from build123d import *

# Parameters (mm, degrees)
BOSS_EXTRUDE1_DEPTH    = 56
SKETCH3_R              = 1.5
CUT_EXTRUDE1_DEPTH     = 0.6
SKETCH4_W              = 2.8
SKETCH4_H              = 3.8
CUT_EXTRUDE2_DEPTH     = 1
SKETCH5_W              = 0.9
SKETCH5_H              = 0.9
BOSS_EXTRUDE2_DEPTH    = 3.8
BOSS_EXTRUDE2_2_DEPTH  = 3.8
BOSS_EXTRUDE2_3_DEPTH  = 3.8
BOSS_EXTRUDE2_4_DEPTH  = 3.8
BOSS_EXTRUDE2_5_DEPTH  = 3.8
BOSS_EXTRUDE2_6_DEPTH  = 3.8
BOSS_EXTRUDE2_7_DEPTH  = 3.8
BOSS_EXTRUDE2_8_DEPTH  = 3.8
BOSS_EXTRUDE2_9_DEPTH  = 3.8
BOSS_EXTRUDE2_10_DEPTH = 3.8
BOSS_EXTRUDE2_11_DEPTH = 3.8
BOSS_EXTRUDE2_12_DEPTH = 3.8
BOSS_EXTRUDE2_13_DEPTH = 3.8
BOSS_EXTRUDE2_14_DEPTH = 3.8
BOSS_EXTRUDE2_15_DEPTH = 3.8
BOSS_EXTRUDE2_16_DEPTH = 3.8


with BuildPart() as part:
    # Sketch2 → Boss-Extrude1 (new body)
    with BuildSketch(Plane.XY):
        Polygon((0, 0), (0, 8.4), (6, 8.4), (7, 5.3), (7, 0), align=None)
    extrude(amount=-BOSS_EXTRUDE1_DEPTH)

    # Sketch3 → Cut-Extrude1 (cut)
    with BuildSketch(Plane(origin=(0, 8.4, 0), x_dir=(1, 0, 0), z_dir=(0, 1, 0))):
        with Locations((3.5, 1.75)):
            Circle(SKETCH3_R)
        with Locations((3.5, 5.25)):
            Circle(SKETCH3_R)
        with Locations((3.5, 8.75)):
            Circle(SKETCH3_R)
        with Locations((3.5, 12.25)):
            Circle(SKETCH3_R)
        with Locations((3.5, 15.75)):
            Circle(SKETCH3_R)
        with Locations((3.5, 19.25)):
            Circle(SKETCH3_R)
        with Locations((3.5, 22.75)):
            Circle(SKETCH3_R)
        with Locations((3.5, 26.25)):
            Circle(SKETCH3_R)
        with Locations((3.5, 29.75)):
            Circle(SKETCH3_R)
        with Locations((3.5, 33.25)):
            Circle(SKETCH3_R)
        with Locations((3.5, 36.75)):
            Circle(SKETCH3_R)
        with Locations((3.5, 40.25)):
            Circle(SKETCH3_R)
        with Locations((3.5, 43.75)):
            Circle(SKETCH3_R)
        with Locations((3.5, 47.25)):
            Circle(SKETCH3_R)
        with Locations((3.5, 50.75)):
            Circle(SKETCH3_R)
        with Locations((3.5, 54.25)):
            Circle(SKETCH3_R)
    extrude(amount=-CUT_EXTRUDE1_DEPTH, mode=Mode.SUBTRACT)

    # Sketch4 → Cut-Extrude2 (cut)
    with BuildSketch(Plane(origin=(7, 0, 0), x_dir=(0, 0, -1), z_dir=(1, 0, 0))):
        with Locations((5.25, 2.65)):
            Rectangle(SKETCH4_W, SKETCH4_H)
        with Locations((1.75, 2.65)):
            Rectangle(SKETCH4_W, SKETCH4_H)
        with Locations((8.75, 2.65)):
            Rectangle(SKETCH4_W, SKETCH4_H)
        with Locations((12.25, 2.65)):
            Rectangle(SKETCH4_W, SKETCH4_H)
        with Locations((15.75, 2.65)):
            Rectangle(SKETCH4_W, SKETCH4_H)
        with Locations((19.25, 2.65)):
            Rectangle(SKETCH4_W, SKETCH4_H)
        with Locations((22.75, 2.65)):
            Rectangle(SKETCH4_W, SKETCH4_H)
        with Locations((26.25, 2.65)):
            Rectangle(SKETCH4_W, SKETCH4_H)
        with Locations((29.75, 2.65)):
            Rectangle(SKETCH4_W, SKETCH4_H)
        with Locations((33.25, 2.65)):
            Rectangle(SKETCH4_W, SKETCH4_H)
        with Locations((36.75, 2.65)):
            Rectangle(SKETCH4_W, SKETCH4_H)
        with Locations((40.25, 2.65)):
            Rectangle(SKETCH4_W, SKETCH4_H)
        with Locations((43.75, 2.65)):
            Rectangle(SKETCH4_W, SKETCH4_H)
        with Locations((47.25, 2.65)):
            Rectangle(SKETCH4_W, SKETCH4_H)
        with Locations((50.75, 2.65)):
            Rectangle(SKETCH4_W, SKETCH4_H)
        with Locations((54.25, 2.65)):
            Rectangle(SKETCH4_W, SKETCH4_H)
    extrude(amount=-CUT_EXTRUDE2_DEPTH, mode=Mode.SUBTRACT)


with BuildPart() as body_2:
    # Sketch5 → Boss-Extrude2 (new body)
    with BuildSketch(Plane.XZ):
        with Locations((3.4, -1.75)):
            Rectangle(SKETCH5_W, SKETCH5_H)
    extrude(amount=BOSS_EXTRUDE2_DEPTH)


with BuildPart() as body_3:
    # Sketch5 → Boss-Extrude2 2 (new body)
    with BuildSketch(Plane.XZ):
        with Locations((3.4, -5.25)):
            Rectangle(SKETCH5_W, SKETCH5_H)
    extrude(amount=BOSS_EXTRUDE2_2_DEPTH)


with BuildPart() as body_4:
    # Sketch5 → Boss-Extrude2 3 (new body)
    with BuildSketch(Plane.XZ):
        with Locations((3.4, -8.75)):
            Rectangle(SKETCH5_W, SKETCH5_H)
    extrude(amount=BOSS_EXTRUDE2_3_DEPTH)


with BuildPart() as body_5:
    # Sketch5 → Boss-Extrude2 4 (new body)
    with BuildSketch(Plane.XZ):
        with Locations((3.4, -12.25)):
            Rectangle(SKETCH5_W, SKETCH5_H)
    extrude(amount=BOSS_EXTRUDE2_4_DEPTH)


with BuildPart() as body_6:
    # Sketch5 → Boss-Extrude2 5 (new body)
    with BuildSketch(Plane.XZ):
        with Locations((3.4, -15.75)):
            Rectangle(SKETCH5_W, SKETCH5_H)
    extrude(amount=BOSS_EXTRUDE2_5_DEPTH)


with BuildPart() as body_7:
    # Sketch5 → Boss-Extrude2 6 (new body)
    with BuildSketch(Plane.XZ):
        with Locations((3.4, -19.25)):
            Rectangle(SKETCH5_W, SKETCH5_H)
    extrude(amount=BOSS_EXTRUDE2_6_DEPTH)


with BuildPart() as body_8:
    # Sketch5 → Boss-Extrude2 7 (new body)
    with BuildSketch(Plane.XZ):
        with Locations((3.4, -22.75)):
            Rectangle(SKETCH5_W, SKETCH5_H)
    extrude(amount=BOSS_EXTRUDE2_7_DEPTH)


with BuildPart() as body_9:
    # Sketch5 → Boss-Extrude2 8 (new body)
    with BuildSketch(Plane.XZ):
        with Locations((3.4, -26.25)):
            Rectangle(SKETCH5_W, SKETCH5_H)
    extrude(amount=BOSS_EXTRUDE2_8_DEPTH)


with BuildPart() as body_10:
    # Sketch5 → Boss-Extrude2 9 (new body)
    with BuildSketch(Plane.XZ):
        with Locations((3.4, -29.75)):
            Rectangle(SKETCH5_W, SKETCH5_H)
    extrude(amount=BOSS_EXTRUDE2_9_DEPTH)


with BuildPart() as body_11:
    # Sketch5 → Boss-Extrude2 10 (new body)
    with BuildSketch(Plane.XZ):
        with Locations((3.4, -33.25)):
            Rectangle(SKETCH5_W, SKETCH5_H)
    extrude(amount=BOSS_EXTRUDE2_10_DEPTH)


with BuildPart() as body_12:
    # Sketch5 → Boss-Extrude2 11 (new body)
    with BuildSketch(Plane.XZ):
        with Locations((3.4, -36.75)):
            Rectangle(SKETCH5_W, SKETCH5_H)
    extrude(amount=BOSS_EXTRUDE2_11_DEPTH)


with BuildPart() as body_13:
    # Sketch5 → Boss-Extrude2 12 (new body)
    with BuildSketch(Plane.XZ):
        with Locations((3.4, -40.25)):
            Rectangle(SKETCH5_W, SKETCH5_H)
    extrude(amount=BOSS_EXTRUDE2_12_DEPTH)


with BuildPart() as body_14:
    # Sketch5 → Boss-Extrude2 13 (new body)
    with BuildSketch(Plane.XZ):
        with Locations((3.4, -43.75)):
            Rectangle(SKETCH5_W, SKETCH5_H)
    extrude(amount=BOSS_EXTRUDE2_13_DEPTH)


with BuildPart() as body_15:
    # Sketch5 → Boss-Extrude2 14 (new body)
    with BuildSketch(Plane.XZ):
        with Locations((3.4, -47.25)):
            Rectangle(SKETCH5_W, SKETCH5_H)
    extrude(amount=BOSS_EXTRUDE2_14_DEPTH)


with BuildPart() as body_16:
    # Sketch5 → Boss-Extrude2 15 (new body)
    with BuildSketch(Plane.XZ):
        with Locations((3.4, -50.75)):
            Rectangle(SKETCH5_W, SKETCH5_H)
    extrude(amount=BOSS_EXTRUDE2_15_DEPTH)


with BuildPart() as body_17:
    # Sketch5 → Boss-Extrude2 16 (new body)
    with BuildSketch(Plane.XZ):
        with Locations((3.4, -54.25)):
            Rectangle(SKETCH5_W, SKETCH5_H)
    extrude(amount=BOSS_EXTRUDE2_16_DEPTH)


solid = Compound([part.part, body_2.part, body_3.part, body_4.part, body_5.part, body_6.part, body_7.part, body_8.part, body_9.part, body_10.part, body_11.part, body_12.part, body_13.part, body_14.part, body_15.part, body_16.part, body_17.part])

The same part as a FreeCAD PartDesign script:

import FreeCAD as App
import Part
import Sketcher
from FreeCAD import Vector
Q = App.Units.Quantity


def add_polygon(sketch, points):
    """Adds a closed chain of lines whose ends are joined by coincident constraints."""
    first, n = sketch.GeometryCount, len(points)
    for a, b in zip(points, points[1:] + points[:1]):
        sketch.addGeometry(Part.LineSegment(App.Vector(*a, 0), App.Vector(*b, 0)), False)
    for i in range(n):
        sketch.addConstraint(Sketcher.Constraint("Coincident", first + i, 2, first + (i + 1) % n, 1))

doc = App.newDocument("Part")
body = doc.addObject("PartDesign::Body", "Body")

# Sketch on XY plane
sketch1 = body.newObject("Sketcher::SketchObject", "Sketch")
sketch1.AttachmentSupport = (doc.getObject("XY_Plane"), [""])
sketch1.MapMode = "FlatFace"
add_polygon(sketch1, [(0, 8.4), (0, 0), (7, 0), (7, 5.3), (6, 8.4)])  # lines 0-4
sketch1.addConstraint(Sketcher.Constraint("Vertical", 0))
sketch1.addConstraint(Sketcher.Constraint("Horizontal", 1))
sketch1.addConstraint(Sketcher.Constraint("Vertical", 2))
sketch1.addConstraint(Sketcher.Constraint("Horizontal", 4))
sketch1.addConstraint(Sketcher.Constraint("Coincident", 0, 2, -1, 1))
sketch1.addConstraint(Sketcher.Constraint("DistanceX", 1, 1, 1, 2, Q("7 mm")))
sketch1.addConstraint(Sketcher.Constraint("DistanceX", 4, 2, 4, 1, Q("6 mm")))
sketch1.addConstraint(Sketcher.Constraint("DistanceY", 0, 2, 0, 1, Q("8.4 mm")))
sketch1.addConstraint(Sketcher.Constraint("DistanceY", 2, 1, 2, 2, Q("5.3 mm")))
pad1 = body.newObject("PartDesign::Pad", "Pad")
pad1.Profile = sketch1
pad1.Length = 56
pad1.Reversed = True

# Sketch on XZ plane
sketch2 = body.newObject("Sketcher::SketchObject", "Sketch001")
sketch2.AttachmentSupport = (doc.getObject("XZ_Plane"), [""])
sketch2.MapMode = "FlatFace"
sketch2.AttachmentOffset = App.Placement(Vector(0, 0, -8.4), App.Rotation())
sketch2.addGeometry(Part.Circle(Vector(3.5, -1.75, 0), Vector(0, 0, 1), 1.5), False)
sketch2.addGeometry(Part.Circle(Vector(3.5, -5.25, 0), Vector(0, 0, 1), 1.5), False)
sketch2.addGeometry(Part.Circle(Vector(3.5, -8.75, 0), Vector(0, 0, 1), 1.5), False)
sketch2.addGeometry(Part.Circle(Vector(3.5, -12.25, 0), Vector(0, 0, 1), 1.5), False)
sketch2.addGeometry(Part.Circle(Vector(3.5, -15.75, 0), Vector(0, 0, 1), 1.5), False)
sketch2.addGeometry(Part.Circle(Vector(3.5, -19.25, 0), Vector(0, 0, 1), 1.5), False)
sketch2.addGeometry(Part.Circle(Vector(3.5, -22.75, 0), Vector(0, 0, 1), 1.5), False)
sketch2.addGeometry(Part.Circle(Vector(3.5, -26.25, 0), Vector(0, 0, 1), 1.5), False)
sketch2.addGeometry(Part.Circle(Vector(3.5, -29.75, 0), Vector(0, 0, 1), 1.5), False)
sketch2.addGeometry(Part.Circle(Vector(3.5, -33.25, 0), Vector(0, 0, 1), 1.5), False)
sketch2.addGeometry(Part.Circle(Vector(3.5, -36.75, 0), Vector(0, 0, 1), 1.5), False)
sketch2.addGeometry(Part.Circle(Vector(3.5, -40.25, 0), Vector(0, 0, 1), 1.5), False)
sketch2.addGeometry(Part.Circle(Vector(3.5, -43.75, 0), Vector(0, 0, 1), 1.5), False)
sketch2.addGeometry(Part.Circle(Vector(3.5, -47.25, 0), Vector(0, 0, 1), 1.5), False)
sketch2.addGeometry(Part.Circle(Vector(3.5, -50.75, 0), Vector(0, 0, 1), 1.5), False)
sketch2.addGeometry(Part.Circle(Vector(3.5, -54.25, 0), Vector(0, 0, 1), 1.5), False)
sketch2.addConstraint(Sketcher.Constraint("Equal", 0, 1))
sketch2.addConstraint(Sketcher.Constraint("Equal", 1, 2))
sketch2.addConstraint(Sketcher.Constraint("Equal", 2, 3))
sketch2.addConstraint(Sketcher.Constraint("Equal", 3, 4))
sketch2.addConstraint(Sketcher.Constraint("Equal", 4, 5))
sketch2.addConstraint(Sketcher.Constraint("Equal", 5, 6))
sketch2.addConstraint(Sketcher.Constraint("Equal", 6, 7))
sketch2.addConstraint(Sketcher.Constraint("Equal", 7, 8))
sketch2.addConstraint(Sketcher.Constraint("Equal", 8, 9))
sketch2.addConstraint(Sketcher.Constraint("Equal", 9, 10))
sketch2.addConstraint(Sketcher.Constraint("Equal", 10, 11))
sketch2.addConstraint(Sketcher.Constraint("Equal", 11, 12))
sketch2.addConstraint(Sketcher.Constraint("Equal", 12, 13))
sketch2.addConstraint(Sketcher.Constraint("Equal", 13, 14))
sketch2.addConstraint(Sketcher.Constraint("Equal", 14, 15))
sketch2.addConstraint(Sketcher.Constraint("Vertical", 0, 3, 1, 3))
sketch2.addConstraint(Sketcher.Constraint("Vertical", 1, 3, 2, 3))
sketch2.addConstraint(Sketcher.Constraint("Vertical", 2, 3, 3, 3))
sketch2.addConstraint(Sketcher.Constraint("Vertical", 3, 3, 4, 3))
sketch2.addConstraint(Sketcher.Constraint("Vertical", 4, 3, 5, 3))
sketch2.addConstraint(Sketcher.Constraint("Vertical", 5, 3, 6, 3))
sketch2.addConstraint(Sketcher.Constraint("Vertical", 6, 3, 7, 3))
sketch2.addConstraint(Sketcher.Constraint("Vertical", 7, 3, 8, 3))
sketch2.addConstraint(Sketcher.Constraint("Vertical", 8, 3, 9, 3))
sketch2.addConstraint(Sketcher.Constraint("Vertical", 9, 3, 10, 3))
sketch2.addConstraint(Sketcher.Constraint("Vertical", 10, 3, 11, 3))
sketch2.addConstraint(Sketcher.Constraint("Vertical", 11, 3, 12, 3))
sketch2.addConstraint(Sketcher.Constraint("Vertical", 12, 3, 13, 3))
sketch2.addConstraint(Sketcher.Constraint("Vertical", 13, 3, 14, 3))
sketch2.addConstraint(Sketcher.Constraint("Vertical", 14, 3, 15, 3))
sketch2.addConstraint(Sketcher.Constraint("Diameter", 0, Q("3 mm")))
sketch2.addConstraint(Sketcher.Constraint("DistanceY", 2, 3, 0, 3, Q("7 mm")))
sketch2.addConstraint(Sketcher.Constraint("DistanceY", 3, 3, 1, 3, Q("7 mm")))
sketch2.addConstraint(Sketcher.Constraint("DistanceY", 4, 3, 2, 3, Q("7 mm")))
sketch2.addConstraint(Sketcher.Constraint("DistanceY", 5, 3, 3, 3, Q("7 mm")))
sketch2.addConstraint(Sketcher.Constraint("DistanceY", 6, 3, 4, 3, Q("7 mm")))
sketch2.addConstraint(Sketcher.Constraint("DistanceY", 7, 3, 5, 3, Q("7 mm")))
sketch2.addConstraint(Sketcher.Constraint("DistanceY", 8, 3, 6, 3, Q("7 mm")))
sketch2.addConstraint(Sketcher.Constraint("DistanceY", 9, 3, 7, 3, Q("7 mm")))
sketch2.addConstraint(Sketcher.Constraint("DistanceY", 10, 3, 8, 3, Q("7 mm")))
sketch2.addConstraint(Sketcher.Constraint("DistanceY", 11, 3, 9, 3, Q("7 mm")))
sketch2.addConstraint(Sketcher.Constraint("DistanceY", 12, 3, 10, 3, Q("7 mm")))
sketch2.addConstraint(Sketcher.Constraint("DistanceY", 13, 3, 11, 3, Q("7 mm")))
sketch2.addConstraint(Sketcher.Constraint("DistanceY", 14, 3, 12, 3, Q("7 mm")))
sketch2.addConstraint(Sketcher.Constraint("DistanceY", 15, 3, 13, 3, Q("7 mm")))
sketch2.addConstraint(Sketcher.Constraint("DistanceX", -1, 1, 0, 3, Q("3.5 mm")))
sketch2.addConstraint(Sketcher.Constraint("DistanceY", 1, 3, 0, 3, Q("3.5 mm")))
sketch2.addConstraint(Sketcher.Constraint("DistanceY", 0, 3, -1, 1, Q("1.75 mm")))
pocket1 = body.newObject("PartDesign::Pocket", "Pocket")
pocket1.Profile = sketch2
pocket1.Length = 0.6
pocket1.Reversed = True

# Sketch on YZ plane
sketch3 = body.newObject("Sketcher::SketchObject", "Sketch002")
sketch3.AttachmentSupport = (doc.getObject("YZ_Plane"), [""])
sketch3.MapMode = "FlatFace"
sketch3.AttachmentOffset = App.Placement(Vector(0, 0, 7), App.Rotation())
add_polygon(sketch3, [(4.55, -3.85), (0.75, -3.85), (0.75, -6.65), (4.55, -6.65)])  # lines 0-3
add_polygon(sketch3, [(4.55, -0.35), (0.75, -0.35), (0.75, -3.15), (4.55, -3.15)])  # lines 4-7
add_polygon(sketch3, [(4.55, -7.35), (0.75, -7.35), (0.75, -10.15), (4.55, -10.15)])  # lines 8-11
add_polygon(sketch3, [(4.55, -10.85), (0.75, -10.85), (0.75, -13.65), (4.55, -13.65)])  # lines 12-15
add_polygon(sketch3, [(4.55, -14.35), (0.75, -14.35), (0.75, -17.15), (4.55, -17.15)])  # lines 16-19
add_polygon(sketch3, [(4.55, -17.85), (0.75, -17.85), (0.75, -20.65), (4.55, -20.65)])  # lines 20-23
add_polygon(sketch3, [(4.55, -21.35), (0.75, -21.35), (0.75, -24.15), (4.55, -24.15)])  # lines 24-27
add_polygon(sketch3, [(4.55, -24.85), (0.75, -24.85), (0.75, -27.65), (4.55, -27.65)])  # lines 28-31
add_polygon(sketch3, [(4.55, -28.35), (0.75, -28.35), (0.75, -31.15), (4.55, -31.15)])  # lines 32-35
add_polygon(sketch3, [(4.55, -31.85), (0.75, -31.85), (0.75, -34.65), (4.55, -34.65)])  # lines 36-39
add_polygon(sketch3, [(4.55, -35.35), (0.75, -35.35), (0.75, -38.15), (4.55, -38.15)])  # lines 40-43
add_polygon(sketch3, [(4.55, -38.85), (0.75, -38.85), (0.75, -41.65), (4.55, -41.65)])  # lines 44-47
add_polygon(sketch3, [(4.55, -42.35), (0.75, -42.35), (0.75, -45.15), (4.55, -45.15)])  # lines 48-51
add_polygon(sketch3, [(4.55, -45.85), (0.75, -45.85), (0.75, -48.65), (4.55, -48.65)])  # lines 52-55
add_polygon(sketch3, [(4.55, -49.35), (0.75, -49.35), (0.75, -52.15), (4.55, -52.15)])  # lines 56-59
add_polygon(sketch3, [(4.55, -52.85), (0.75, -52.85), (0.75, -55.65), (4.55, -55.65)])  # lines 60-63
sketch3.addConstraint(Sketcher.Constraint("Horizontal", 0))
sketch3.addConstraint(Sketcher.Constraint("Vertical", 1))
sketch3.addConstraint(Sketcher.Constraint("Horizontal", 2))
sketch3.addConstraint(Sketcher.Constraint("Vertical", 3))
sketch3.addConstraint(Sketcher.Constraint("Horizontal", 4))
sketch3.addConstraint(Sketcher.Constraint("Vertical", 5))
sketch3.addConstraint(Sketcher.Constraint("Horizontal", 6))
sketch3.addConstraint(Sketcher.Constraint("Vertical", 7))
sketch3.addConstraint(Sketcher.Constraint("Horizontal", 8))
sketch3.addConstraint(Sketcher.Constraint("Vertical", 9))
sketch3.addConstraint(Sketcher.Constraint("Horizontal", 10))
sketch3.addConstraint(Sketcher.Constraint("Vertical", 11))
sketch3.addConstraint(Sketcher.Constraint("Horizontal", 12))
sketch3.addConstraint(Sketcher.Constraint("Vertical", 13))
sketch3.addConstraint(Sketcher.Constraint("Horizontal", 14))
sketch3.addConstraint(Sketcher.Constraint("Vertical", 15))
sketch3.addConstraint(Sketcher.Constraint("Horizontal", 16))
sketch3.addConstraint(Sketcher.Constraint("Vertical", 17))
sketch3.addConstraint(Sketcher.Constraint("Horizontal", 18))
sketch3.addConstraint(Sketcher.Constraint("Vertical", 19))
sketch3.addConstraint(Sketcher.Constraint("Horizontal", 20))
sketch3.addConstraint(Sketcher.Constraint("Vertical", 21))
sketch3.addConstraint(Sketcher.Constraint("Horizontal", 22))
sketch3.addConstraint(Sketcher.Constraint("Vertical", 23))
sketch3.addConstraint(Sketcher.Constraint("Horizontal", 24))
sketch3.addConstraint(Sketcher.Constraint("Vertical", 25))
sketch3.addConstraint(Sketcher.Constraint("Horizontal", 26))
sketch3.addConstraint(Sketcher.Constraint("Vertical", 27))
sketch3.addConstraint(Sketcher.Constraint("Horizontal", 28))
sketch3.addConstraint(Sketcher.Constraint("Vertical", 29))
sketch3.addConstraint(Sketcher.Constraint("Horizontal", 30))
sketch3.addConstraint(Sketcher.Constraint("Vertical", 31))
sketch3.addConstraint(Sketcher.Constraint("Horizontal", 32))
sketch3.addConstraint(Sketcher.Constraint("Vertical", 33))
sketch3.addConstraint(Sketcher.Constraint("Horizontal", 34))
sketch3.addConstraint(Sketcher.Constraint("Vertical", 35))
sketch3.addConstraint(Sketcher.Constraint("Horizontal", 36))
sketch3.addConstraint(Sketcher.Constraint("Vertical", 37))
sketch3.addConstraint(Sketcher.Constraint("Horizontal", 38))
sketch3.addConstraint(Sketcher.Constraint("Vertical", 39))
sketch3.addConstraint(Sketcher.Constraint("Horizontal", 40))
sketch3.addConstraint(Sketcher.Constraint("Vertical", 41))
sketch3.addConstraint(Sketcher.Constraint("Horizontal", 42))
sketch3.addConstraint(Sketcher.Constraint("Vertical", 43))
sketch3.addConstraint(Sketcher.Constraint("Horizontal", 44))
sketch3.addConstraint(Sketcher.Constraint("Vertical", 45))
sketch3.addConstraint(Sketcher.Constraint("Horizontal", 46))
sketch3.addConstraint(Sketcher.Constraint("Vertical", 47))
sketch3.addConstraint(Sketcher.Constraint("Horizontal", 48))
sketch3.addConstraint(Sketcher.Constraint("Vertical", 49))
sketch3.addConstraint(Sketcher.Constraint("Horizontal", 50))
sketch3.addConstraint(Sketcher.Constraint("Vertical", 51))
sketch3.addConstraint(Sketcher.Constraint("Horizontal", 52))
sketch3.addConstraint(Sketcher.Constraint("Vertical", 53))
sketch3.addConstraint(Sketcher.Constraint("Horizontal", 54))
sketch3.addConstraint(Sketcher.Constraint("Vertical", 55))
sketch3.addConstraint(Sketcher.Constraint("Horizontal", 56))
sketch3.addConstraint(Sketcher.Constraint("Vertical", 57))
sketch3.addConstraint(Sketcher.Constraint("Horizontal", 58))
sketch3.addConstraint(Sketcher.Constraint("Vertical", 59))
sketch3.addConstraint(Sketcher.Constraint("Horizontal", 60))
sketch3.addConstraint(Sketcher.Constraint("Vertical", 61))
sketch3.addConstraint(Sketcher.Constraint("Horizontal", 62))
sketch3.addConstraint(Sketcher.Constraint("Vertical", 63))
sketch3.addConstraint(Sketcher.Constraint("Vertical", 1, 2, 4, 2))
sketch3.addConstraint(Sketcher.Constraint("Vertical", 3, 2, 6, 2))
sketch3.addConstraint(Sketcher.Constraint("Vertical", 5, 2, 8, 2))
sketch3.addConstraint(Sketcher.Constraint("Vertical", 7, 2, 10, 2))
sketch3.addConstraint(Sketcher.Constraint("Vertical", 9, 2, 12, 2))
sketch3.addConstraint(Sketcher.Constraint("Vertical", 11, 2, 14, 2))
sketch3.addConstraint(Sketcher.Constraint("Vertical", 13, 2, 16, 2))
sketch3.addConstraint(Sketcher.Constraint("Vertical", 15, 2, 18, 2))
sketch3.addConstraint(Sketcher.Constraint("Vertical", 17, 2, 20, 2))
sketch3.addConstraint(Sketcher.Constraint("Vertical", 19, 2, 22, 2))
sketch3.addConstraint(Sketcher.Constraint("Vertical", 21, 2, 24, 2))
sketch3.addConstraint(Sketcher.Constraint("Vertical", 23, 2, 26, 2))
sketch3.addConstraint(Sketcher.Constraint("Vertical", 25, 2, 28, 2))
sketch3.addConstraint(Sketcher.Constraint("Vertical", 27, 2, 30, 2))
sketch3.addConstraint(Sketcher.Constraint("Vertical", 29, 2, 32, 2))
sketch3.addConstraint(Sketcher.Constraint("Vertical", 31, 2, 34, 2))
sketch3.addConstraint(Sketcher.Constraint("Vertical", 33, 2, 36, 2))
sketch3.addConstraint(Sketcher.Constraint("Vertical", 35, 2, 38, 2))
sketch3.addConstraint(Sketcher.Constraint("Vertical", 37, 2, 40, 2))
sketch3.addConstraint(Sketcher.Constraint("Vertical", 39, 2, 42, 2))
sketch3.addConstraint(Sketcher.Constraint("Vertical", 41, 2, 44, 2))
sketch3.addConstraint(Sketcher.Constraint("Vertical", 43, 2, 46, 2))
sketch3.addConstraint(Sketcher.Constraint("Vertical", 45, 2, 48, 2))
sketch3.addConstraint(Sketcher.Constraint("Vertical", 47, 2, 50, 2))
sketch3.addConstraint(Sketcher.Constraint("Vertical", 49, 2, 52, 2))
sketch3.addConstraint(Sketcher.Constraint("Vertical", 51, 2, 54, 2))
sketch3.addConstraint(Sketcher.Constraint("Vertical", 53, 2, 56, 2))
sketch3.addConstraint(Sketcher.Constraint("Vertical", 55, 2, 58, 2))
sketch3.addConstraint(Sketcher.Constraint("Vertical", 57, 2, 60, 2))
sketch3.addConstraint(Sketcher.Constraint("Vertical", 59, 2, 62, 2))
sketch3.addConstraint(Sketcher.Constraint("Equal", 3, 5))
sketch3.addConstraint(Sketcher.Constraint("Equal", 7, 9))
sketch3.addConstraint(Sketcher.Constraint("Equal", 11, 13))
sketch3.addConstraint(Sketcher.Constraint("Equal", 15, 17))
sketch3.addConstraint(Sketcher.Constraint("Equal", 19, 21))
sketch3.addConstraint(Sketcher.Constraint("Equal", 23, 25))
sketch3.addConstraint(Sketcher.Constraint("Equal", 27, 29))
sketch3.addConstraint(Sketcher.Constraint("Equal", 31, 33))
sketch3.addConstraint(Sketcher.Constraint("Equal", 35, 37))
sketch3.addConstraint(Sketcher.Constraint("Equal", 39, 41))
sketch3.addConstraint(Sketcher.Constraint("Equal", 43, 45))
sketch3.addConstraint(Sketcher.Constraint("Equal", 47, 49))
sketch3.addConstraint(Sketcher.Constraint("Equal", 51, 53))
sketch3.addConstraint(Sketcher.Constraint("Equal", 55, 57))
sketch3.addConstraint(Sketcher.Constraint("Equal", 59, 61))
sketch3.addConstraint(Sketcher.Constraint("DistanceX", 0, 2, 0, 1, Q("3.8 mm")))
sketch3.addConstraint(Sketcher.Constraint("DistanceY", 1, 2, 1, 1, Q("2.8 mm")))
sketch3.addConstraint(Sketcher.Constraint("DistanceX", -1, 1, 0, 2, Q("0.75 mm")))
sketch3.addConstraint(Sketcher.Constraint("DistanceY", 0, 2, -1, 1, Q("3.85 mm")))
sketch3.addConstraint(Sketcher.Constraint("DistanceY", 4, 2, -1, 1, Q("0.35 mm")))
sketch3.addConstraint(Sketcher.Constraint("DistanceY", 8, 2, -1, 1, Q("7.35 mm")))
sketch3.addConstraint(Sketcher.Constraint("DistanceY", 12, 2, -1, 1, Q("10.85 mm")))
sketch3.addConstraint(Sketcher.Constraint("DistanceY", 16, 2, -1, 1, Q("14.35 mm")))
sketch3.addConstraint(Sketcher.Constraint("DistanceY", 20, 2, -1, 1, Q("17.85 mm")))
sketch3.addConstraint(Sketcher.Constraint("DistanceY", 24, 2, -1, 1, Q("21.35 mm")))
sketch3.addConstraint(Sketcher.Constraint("DistanceY", 28, 2, -1, 1, Q("24.85 mm")))
sketch3.addConstraint(Sketcher.Constraint("DistanceY", 32, 2, -1, 1, Q("28.35 mm")))
sketch3.addConstraint(Sketcher.Constraint("DistanceY", 36, 2, -1, 1, Q("31.85 mm")))
sketch3.addConstraint(Sketcher.Constraint("DistanceY", 40, 2, -1, 1, Q("35.35 mm")))
sketch3.addConstraint(Sketcher.Constraint("DistanceY", 44, 2, -1, 1, Q("38.85 mm")))
sketch3.addConstraint(Sketcher.Constraint("DistanceY", 48, 2, -1, 1, Q("42.35 mm")))
sketch3.addConstraint(Sketcher.Constraint("DistanceY", 52, 2, -1, 1, Q("45.85 mm")))
sketch3.addConstraint(Sketcher.Constraint("DistanceY", 56, 2, -1, 1, Q("49.35 mm")))
sketch3.addConstraint(Sketcher.Constraint("DistanceY", 60, 2, -1, 1, Q("52.85 mm")))
pocket2 = body.newObject("PartDesign::Pocket", "Pocket001")
pocket2.Profile = sketch3
pocket2.Length = 1
body2 = doc.addObject("PartDesign::Body", "Body001")

# Sketch on XZ plane
sketch4 = body2.newObject("Sketcher::SketchObject", "Sketch003")
sketch4.AttachmentSupport = (doc.getObject("XZ_Plane001"), [""])
sketch4.MapMode = "FlatFace"
add_polygon(sketch4, [(2.95, -1.3), (2.95, -2.2), (3.85, -2.2), (3.85, -1.3)])  # lines 0-3
sketch4.addConstraint(Sketcher.Constraint("Vertical", 0))
sketch4.addConstraint(Sketcher.Constraint("Horizontal", 1))
sketch4.addConstraint(Sketcher.Constraint("Vertical", 2))
sketch4.addConstraint(Sketcher.Constraint("Horizontal", 3))
sketch4.addConstraint(Sketcher.Constraint("Equal", 3, 0))
sketch4.addConstraint(Sketcher.Constraint("DistanceX", 1, 1, 1, 2, Q("0.9 mm")))
sketch4.addConstraint(Sketcher.Constraint("DistanceY", 0, 2, -1, 1, Q("2.2 mm")))
sketch4.addConstraint(Sketcher.Constraint("DistanceX", -1, 1, 0, 2, Q("2.95 mm")))
pad2 = body2.newObject("PartDesign::Pad", "Pad001")
pad2.Profile = sketch4
pad2.Length = 3.8
body3 = doc.addObject("PartDesign::Body", "Body002")

# Sketch on XZ plane
sketch5 = body3.newObject("Sketcher::SketchObject", "Sketch004")
sketch5.AttachmentSupport = (doc.getObject("XZ_Plane002"), [""])
sketch5.MapMode = "FlatFace"
add_polygon(sketch5, [(2.95, -4.8), (2.95, -5.7), (3.85, -5.7), (3.85, -4.8)])  # lines 0-3
sketch5.addConstraint(Sketcher.Constraint("Vertical", 0))
sketch5.addConstraint(Sketcher.Constraint("Horizontal", 1))
sketch5.addConstraint(Sketcher.Constraint("Vertical", 2))
sketch5.addConstraint(Sketcher.Constraint("Horizontal", 3))
sketch5.addConstraint(Sketcher.Constraint("Equal", 3, 0))
sketch5.addConstraint(Sketcher.Constraint("DistanceX", 1, 1, 1, 2, Q("0.9 mm")))
sketch5.addConstraint(Sketcher.Constraint("DistanceY", 0, 2, -1, 1, Q("5.7 mm")))
sketch5.addConstraint(Sketcher.Constraint("DistanceX", -1, 1, 0, 2, Q("2.95 mm")))
pad3 = body3.newObject("PartDesign::Pad", "Pad002")
pad3.Profile = sketch5
pad3.Length = 3.8
body4 = doc.addObject("PartDesign::Body", "Body003")

# Sketch on XZ plane
sketch6 = body4.newObject("Sketcher::SketchObject", "Sketch005")
sketch6.AttachmentSupport = (doc.getObject("XZ_Plane003"), [""])
sketch6.MapMode = "FlatFace"
add_polygon(sketch6, [(2.95, -8.3), (2.95, -9.2), (3.85, -9.2), (3.85, -8.3)])  # lines 0-3
sketch6.addConstraint(Sketcher.Constraint("Vertical", 0))
sketch6.addConstraint(Sketcher.Constraint("Horizontal", 1))
sketch6.addConstraint(Sketcher.Constraint("Vertical", 2))
sketch6.addConstraint(Sketcher.Constraint("Horizontal", 3))
sketch6.addConstraint(Sketcher.Constraint("Equal", 3, 0))
sketch6.addConstraint(Sketcher.Constraint("DistanceX", 1, 1, 1, 2, Q("0.9 mm")))
sketch6.addConstraint(Sketcher.Constraint("DistanceY", 0, 2, -1, 1, Q("9.2 mm")))
sketch6.addConstraint(Sketcher.Constraint("DistanceX", -1, 1, 0, 2, Q("2.95 mm")))
pad4 = body4.newObject("PartDesign::Pad", "Pad003")
pad4.Profile = sketch6
pad4.Length = 3.8
body5 = doc.addObject("PartDesign::Body", "Body004")

# Sketch on XZ plane
sketch7 = body5.newObject("Sketcher::SketchObject", "Sketch006")
sketch7.AttachmentSupport = (doc.getObject("XZ_Plane004"), [""])
sketch7.MapMode = "FlatFace"
add_polygon(sketch7, [(2.95, -11.8), (2.95, -12.7), (3.85, -12.7), (3.85, -11.8)])  # lines 0-3
sketch7.addConstraint(Sketcher.Constraint("Vertical", 0))
sketch7.addConstraint(Sketcher.Constraint("Horizontal", 1))
sketch7.addConstraint(Sketcher.Constraint("Vertical", 2))
sketch7.addConstraint(Sketcher.Constraint("Horizontal", 3))
sketch7.addConstraint(Sketcher.Constraint("Equal", 3, 0))
sketch7.addConstraint(Sketcher.Constraint("DistanceX", 1, 1, 1, 2, Q("0.9 mm")))
sketch7.addConstraint(Sketcher.Constraint("DistanceY", 0, 2, -1, 1, Q("12.7 mm")))
sketch7.addConstraint(Sketcher.Constraint("DistanceX", -1, 1, 0, 2, Q("2.95 mm")))
pad5 = body5.newObject("PartDesign::Pad", "Pad004")
pad5.Profile = sketch7
pad5.Length = 3.8
body6 = doc.addObject("PartDesign::Body", "Body005")

# Sketch on XZ plane
sketch8 = body6.newObject("Sketcher::SketchObject", "Sketch007")
sketch8.AttachmentSupport = (doc.getObject("XZ_Plane005"), [""])
sketch8.MapMode = "FlatFace"
add_polygon(sketch8, [(2.95, -15.3), (2.95, -16.2), (3.85, -16.2), (3.85, -15.3)])  # lines 0-3
sketch8.addConstraint(Sketcher.Constraint("Vertical", 0))
sketch8.addConstraint(Sketcher.Constraint("Horizontal", 1))
sketch8.addConstraint(Sketcher.Constraint("Vertical", 2))
sketch8.addConstraint(Sketcher.Constraint("Horizontal", 3))
sketch8.addConstraint(Sketcher.Constraint("Equal", 3, 0))
sketch8.addConstraint(Sketcher.Constraint("DistanceX", 1, 1, 1, 2, Q("0.9 mm")))
sketch8.addConstraint(Sketcher.Constraint("DistanceY", 0, 2, -1, 1, Q("16.2 mm")))
sketch8.addConstraint(Sketcher.Constraint("DistanceX", -1, 1, 0, 2, Q("2.95 mm")))
pad6 = body6.newObject("PartDesign::Pad", "Pad005")
pad6.Profile = sketch8
pad6.Length = 3.8
body7 = doc.addObject("PartDesign::Body", "Body006")

# Sketch on XZ plane
sketch9 = body7.newObject("Sketcher::SketchObject", "Sketch008")
sketch9.AttachmentSupport = (doc.getObject("XZ_Plane006"), [""])
sketch9.MapMode = "FlatFace"
add_polygon(sketch9, [(2.95, -18.8), (2.95, -19.7), (3.85, -19.7), (3.85, -18.8)])  # lines 0-3
sketch9.addConstraint(Sketcher.Constraint("Vertical", 0))
sketch9.addConstraint(Sketcher.Constraint("Horizontal", 1))
sketch9.addConstraint(Sketcher.Constraint("Vertical", 2))
sketch9.addConstraint(Sketcher.Constraint("Horizontal", 3))
sketch9.addConstraint(Sketcher.Constraint("Equal", 3, 0))
sketch9.addConstraint(Sketcher.Constraint("DistanceX", 1, 1, 1, 2, Q("0.9 mm")))
sketch9.addConstraint(Sketcher.Constraint("DistanceY", 0, 2, -1, 1, Q("19.7 mm")))
sketch9.addConstraint(Sketcher.Constraint("DistanceX", -1, 1, 0, 2, Q("2.95 mm")))
pad7 = body7.newObject("PartDesign::Pad", "Pad006")
pad7.Profile = sketch9
pad7.Length = 3.8
body8 = doc.addObject("PartDesign::Body", "Body007")

# Sketch on XZ plane
sketch10 = body8.newObject("Sketcher::SketchObject", "Sketch009")
sketch10.AttachmentSupport = (doc.getObject("XZ_Plane007"), [""])
sketch10.MapMode = "FlatFace"
add_polygon(sketch10, [(2.95, -22.3), (2.95, -23.2), (3.85, -23.2), (3.85, -22.3)])  # lines 0-3
sketch10.addConstraint(Sketcher.Constraint("Vertical", 0))
sketch10.addConstraint(Sketcher.Constraint("Horizontal", 1))
sketch10.addConstraint(Sketcher.Constraint("Vertical", 2))
sketch10.addConstraint(Sketcher.Constraint("Horizontal", 3))
sketch10.addConstraint(Sketcher.Constraint("Equal", 3, 0))
sketch10.addConstraint(Sketcher.Constraint("DistanceX", 1, 1, 1, 2, Q("0.9 mm")))
sketch10.addConstraint(Sketcher.Constraint("DistanceY", 0, 2, -1, 1, Q("23.2 mm")))
sketch10.addConstraint(Sketcher.Constraint("DistanceX", -1, 1, 0, 2, Q("2.95 mm")))
pad8 = body8.newObject("PartDesign::Pad", "Pad007")
pad8.Profile = sketch10
pad8.Length = 3.8
body9 = doc.addObject("PartDesign::Body", "Body008")

# Sketch on XZ plane
sketch11 = body9.newObject("Sketcher::SketchObject", "Sketch010")
sketch11.AttachmentSupport = (doc.getObject("XZ_Plane008"), [""])
sketch11.MapMode = "FlatFace"
add_polygon(sketch11, [(2.95, -25.8), (2.95, -26.7), (3.85, -26.7), (3.85, -25.8)])  # lines 0-3
sketch11.addConstraint(Sketcher.Constraint("Vertical", 0))
sketch11.addConstraint(Sketcher.Constraint("Horizontal", 1))
sketch11.addConstraint(Sketcher.Constraint("Vertical", 2))
sketch11.addConstraint(Sketcher.Constraint("Horizontal", 3))
sketch11.addConstraint(Sketcher.Constraint("Equal", 3, 0))
sketch11.addConstraint(Sketcher.Constraint("DistanceX", 1, 1, 1, 2, Q("0.9 mm")))
sketch11.addConstraint(Sketcher.Constraint("DistanceY", 0, 2, -1, 1, Q("26.7 mm")))
sketch11.addConstraint(Sketcher.Constraint("DistanceX", -1, 1, 0, 2, Q("2.95 mm")))
pad9 = body9.newObject("PartDesign::Pad", "Pad008")
pad9.Profile = sketch11
pad9.Length = 3.8
body10 = doc.addObject("PartDesign::Body", "Body009")

# Sketch on XZ plane
sketch12 = body10.newObject("Sketcher::SketchObject", "Sketch011")
sketch12.AttachmentSupport = (doc.getObject("XZ_Plane009"), [""])
sketch12.MapMode = "FlatFace"
add_polygon(sketch12, [(2.95, -29.3), (2.95, -30.2), (3.85, -30.2), (3.85, -29.3)])  # lines 0-3
sketch12.addConstraint(Sketcher.Constraint("Vertical", 0))
sketch12.addConstraint(Sketcher.Constraint("Horizontal", 1))
sketch12.addConstraint(Sketcher.Constraint("Vertical", 2))
sketch12.addConstraint(Sketcher.Constraint("Horizontal", 3))
sketch12.addConstraint(Sketcher.Constraint("Equal", 3, 0))
sketch12.addConstraint(Sketcher.Constraint("DistanceX", 1, 1, 1, 2, Q("0.9 mm")))
sketch12.addConstraint(Sketcher.Constraint("DistanceY", 0, 2, -1, 1, Q("30.2 mm")))
sketch12.addConstraint(Sketcher.Constraint("DistanceX", -1, 1, 0, 2, Q("2.95 mm")))
pad10 = body10.newObject("PartDesign::Pad", "Pad009")
pad10.Profile = sketch12
pad10.Length = 3.8
body11 = doc.addObject("PartDesign::Body", "Body010")

# Sketch on XZ plane
sketch13 = body11.newObject("Sketcher::SketchObject", "Sketch012")
sketch13.AttachmentSupport = (doc.getObject("XZ_Plane010"), [""])
sketch13.MapMode = "FlatFace"
add_polygon(sketch13, [(2.95, -32.8), (2.95, -33.7), (3.85, -33.7), (3.85, -32.8)])  # lines 0-3
sketch13.addConstraint(Sketcher.Constraint("Vertical", 0))
sketch13.addConstraint(Sketcher.Constraint("Horizontal", 1))
sketch13.addConstraint(Sketcher.Constraint("Vertical", 2))
sketch13.addConstraint(Sketcher.Constraint("Horizontal", 3))
sketch13.addConstraint(Sketcher.Constraint("Equal", 3, 0))
sketch13.addConstraint(Sketcher.Constraint("DistanceX", 1, 1, 1, 2, Q("0.9 mm")))
sketch13.addConstraint(Sketcher.Constraint("DistanceY", 0, 2, -1, 1, Q("33.7 mm")))
sketch13.addConstraint(Sketcher.Constraint("DistanceX", -1, 1, 0, 2, Q("2.95 mm")))
pad11 = body11.newObject("PartDesign::Pad", "Pad010")
pad11.Profile = sketch13
pad11.Length = 3.8
body12 = doc.addObject("PartDesign::Body", "Body011")

# Sketch on XZ plane
sketch14 = body12.newObject("Sketcher::SketchObject", "Sketch013")
sketch14.AttachmentSupport = (doc.getObject("XZ_Plane011"), [""])
sketch14.MapMode = "FlatFace"
add_polygon(sketch14, [(2.95, -36.3), (2.95, -37.2), (3.85, -37.2), (3.85, -36.3)])  # lines 0-3
sketch14.addConstraint(Sketcher.Constraint("Vertical", 0))
sketch14.addConstraint(Sketcher.Constraint("Horizontal", 1))
sketch14.addConstraint(Sketcher.Constraint("Vertical", 2))
sketch14.addConstraint(Sketcher.Constraint("Horizontal", 3))
sketch14.addConstraint(Sketcher.Constraint("Equal", 3, 0))
sketch14.addConstraint(Sketcher.Constraint("DistanceX", 1, 1, 1, 2, Q("0.9 mm")))
sketch14.addConstraint(Sketcher.Constraint("DistanceY", 0, 2, -1, 1, Q("37.2 mm")))
sketch14.addConstraint(Sketcher.Constraint("DistanceX", -1, 1, 0, 2, Q("2.95 mm")))
pad12 = body12.newObject("PartDesign::Pad", "Pad011")
pad12.Profile = sketch14
pad12.Length = 3.8
body13 = doc.addObject("PartDesign::Body", "Body012")

# Sketch on XZ plane
sketch15 = body13.newObject("Sketcher::SketchObject", "Sketch014")
sketch15.AttachmentSupport = (doc.getObject("XZ_Plane012"), [""])
sketch15.MapMode = "FlatFace"
add_polygon(sketch15, [(2.95, -39.8), (2.95, -40.7), (3.85, -40.7), (3.85, -39.8)])  # lines 0-3
sketch15.addConstraint(Sketcher.Constraint("Vertical", 0))
sketch15.addConstraint(Sketcher.Constraint("Horizontal", 1))
sketch15.addConstraint(Sketcher.Constraint("Vertical", 2))
sketch15.addConstraint(Sketcher.Constraint("Horizontal", 3))
sketch15.addConstraint(Sketcher.Constraint("Equal", 3, 0))
sketch15.addConstraint(Sketcher.Constraint("DistanceX", 1, 1, 1, 2, Q("0.9 mm")))
sketch15.addConstraint(Sketcher.Constraint("DistanceY", 0, 2, -1, 1, Q("40.7 mm")))
sketch15.addConstraint(Sketcher.Constraint("DistanceX", -1, 1, 0, 2, Q("2.95 mm")))
pad13 = body13.newObject("PartDesign::Pad", "Pad012")
pad13.Profile = sketch15
pad13.Length = 3.8
body14 = doc.addObject("PartDesign::Body", "Body013")

# Sketch on XZ plane
sketch16 = body14.newObject("Sketcher::SketchObject", "Sketch015")
sketch16.AttachmentSupport = (doc.getObject("XZ_Plane013"), [""])
sketch16.MapMode = "FlatFace"
add_polygon(sketch16, [(2.95, -43.3), (2.95, -44.2), (3.85, -44.2), (3.85, -43.3)])  # lines 0-3
sketch16.addConstraint(Sketcher.Constraint("Vertical", 0))
sketch16.addConstraint(Sketcher.Constraint("Horizontal", 1))
sketch16.addConstraint(Sketcher.Constraint("Vertical", 2))
sketch16.addConstraint(Sketcher.Constraint("Horizontal", 3))
sketch16.addConstraint(Sketcher.Constraint("Equal", 3, 0))
sketch16.addConstraint(Sketcher.Constraint("DistanceX", 1, 1, 1, 2, Q("0.9 mm")))
sketch16.addConstraint(Sketcher.Constraint("DistanceY", 0, 2, -1, 1, Q("44.2 mm")))
sketch16.addConstraint(Sketcher.Constraint("DistanceX", -1, 1, 0, 2, Q("2.95 mm")))
pad14 = body14.newObject("PartDesign::Pad", "Pad013")
pad14.Profile = sketch16
pad14.Length = 3.8
body15 = doc.addObject("PartDesign::Body", "Body014")

# Sketch on XZ plane
sketch17 = body15.newObject("Sketcher::SketchObject", "Sketch016")
sketch17.AttachmentSupport = (doc.getObject("XZ_Plane014"), [""])
sketch17.MapMode = "FlatFace"
add_polygon(sketch17, [(2.95, -46.8), (2.95, -47.7), (3.85, -47.7), (3.85, -46.8)])  # lines 0-3
sketch17.addConstraint(Sketcher.Constraint("Vertical", 0))
sketch17.addConstraint(Sketcher.Constraint("Horizontal", 1))
sketch17.addConstraint(Sketcher.Constraint("Vertical", 2))
sketch17.addConstraint(Sketcher.Constraint("Horizontal", 3))
sketch17.addConstraint(Sketcher.Constraint("Equal", 3, 0))
sketch17.addConstraint(Sketcher.Constraint("DistanceX", 1, 1, 1, 2, Q("0.9 mm")))
sketch17.addConstraint(Sketcher.Constraint("DistanceY", 0, 2, -1, 1, Q("47.7 mm")))
sketch17.addConstraint(Sketcher.Constraint("DistanceX", -1, 1, 0, 2, Q("2.95 mm")))
pad15 = body15.newObject("PartDesign::Pad", "Pad014")
pad15.Profile = sketch17
pad15.Length = 3.8
body16 = doc.addObject("PartDesign::Body", "Body015")

# Sketch on XZ plane
sketch18 = body16.newObject("Sketcher::SketchObject", "Sketch017")
sketch18.AttachmentSupport = (doc.getObject("XZ_Plane015"), [""])
sketch18.MapMode = "FlatFace"
add_polygon(sketch18, [(2.95, -50.3), (2.95, -51.2), (3.85, -51.2), (3.85, -50.3)])  # lines 0-3
sketch18.addConstraint(Sketcher.Constraint("Vertical", 0))
sketch18.addConstraint(Sketcher.Constraint("Horizontal", 1))
sketch18.addConstraint(Sketcher.Constraint("Vertical", 2))
sketch18.addConstraint(Sketcher.Constraint("Horizontal", 3))
sketch18.addConstraint(Sketcher.Constraint("Equal", 3, 0))
sketch18.addConstraint(Sketcher.Constraint("DistanceX", 1, 1, 1, 2, Q("0.9 mm")))
sketch18.addConstraint(Sketcher.Constraint("DistanceY", 0, 2, -1, 1, Q("51.2 mm")))
sketch18.addConstraint(Sketcher.Constraint("DistanceX", -1, 1, 0, 2, Q("2.95 mm")))
pad16 = body16.newObject("PartDesign::Pad", "Pad015")
pad16.Profile = sketch18
pad16.Length = 3.8
body17 = doc.addObject("PartDesign::Body", "Body016")

# Sketch on XZ plane
sketch19 = body17.newObject("Sketcher::SketchObject", "Sketch018")
sketch19.AttachmentSupport = (doc.getObject("XZ_Plane016"), [""])
sketch19.MapMode = "FlatFace"
add_polygon(sketch19, [(2.95, -53.8), (2.95, -54.7), (3.85, -54.7), (3.85, -53.8)])  # lines 0-3
sketch19.addConstraint(Sketcher.Constraint("Vertical", 0))
sketch19.addConstraint(Sketcher.Constraint("Horizontal", 1))
sketch19.addConstraint(Sketcher.Constraint("Vertical", 2))
sketch19.addConstraint(Sketcher.Constraint("Horizontal", 3))
sketch19.addConstraint(Sketcher.Constraint("Equal", 3, 0))
sketch19.addConstraint(Sketcher.Constraint("DistanceX", 1, 1, 1, 2, Q("0.9 mm")))
sketch19.addConstraint(Sketcher.Constraint("DistanceY", 0, 2, -1, 1, Q("54.7 mm")))
sketch19.addConstraint(Sketcher.Constraint("DistanceX", -1, 1, 0, 2, Q("2.95 mm")))
pad17 = body17.newObject("PartDesign::Pad", "Pad016")
pad17.Profile = sketch19
pad17.Length = 3.8

doc.recompute()
